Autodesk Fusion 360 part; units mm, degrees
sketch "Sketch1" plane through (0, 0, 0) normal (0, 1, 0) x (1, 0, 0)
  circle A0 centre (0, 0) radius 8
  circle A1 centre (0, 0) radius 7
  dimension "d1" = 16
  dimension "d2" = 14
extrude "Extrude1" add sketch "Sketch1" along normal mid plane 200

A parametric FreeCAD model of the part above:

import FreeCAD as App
import Part
import Sketcher

doc = App.newDocument("Part")
body = doc.addObject("PartDesign::Body", "Body")

# Sketch on XZ plane
sketch1 = doc.addObject("Sketcher::SketchObject", "Sketch")
body.addObject(sketch1)
sketch1.AttachmentSupport = (doc.XZ_Plane, [""])
sketch1.MapMode = "FlatFace"
sketch1.addGeometry(Part.Circle(App.Vector(0, 0, 0), App.Vector(0, 0, 1), 8), False)
sketch1.addGeometry(Part.Circle(App.Vector(0, 0, 0), App.Vector(0, 0, 1), 7), False)
sketch1.addConstraint(Sketcher.Constraint("Coincident", 0, 3, -1, 1))
sketch1.addConstraint(Sketcher.Constraint("Coincident", 1, 3, -1, 1))
sketch1.addConstraint(Sketcher.Constraint("Diameter", 0, 16.0))
sketch1.addConstraint(Sketcher.Constraint("Diameter", 1, 14.0))
pad1 = doc.addObject("PartDesign::Pad", "Pad")
body.addObject(pad1)
pad1.Profile = sketch1
pad1.Length = 200
pad1.Midplane = True

doc.recompute()
